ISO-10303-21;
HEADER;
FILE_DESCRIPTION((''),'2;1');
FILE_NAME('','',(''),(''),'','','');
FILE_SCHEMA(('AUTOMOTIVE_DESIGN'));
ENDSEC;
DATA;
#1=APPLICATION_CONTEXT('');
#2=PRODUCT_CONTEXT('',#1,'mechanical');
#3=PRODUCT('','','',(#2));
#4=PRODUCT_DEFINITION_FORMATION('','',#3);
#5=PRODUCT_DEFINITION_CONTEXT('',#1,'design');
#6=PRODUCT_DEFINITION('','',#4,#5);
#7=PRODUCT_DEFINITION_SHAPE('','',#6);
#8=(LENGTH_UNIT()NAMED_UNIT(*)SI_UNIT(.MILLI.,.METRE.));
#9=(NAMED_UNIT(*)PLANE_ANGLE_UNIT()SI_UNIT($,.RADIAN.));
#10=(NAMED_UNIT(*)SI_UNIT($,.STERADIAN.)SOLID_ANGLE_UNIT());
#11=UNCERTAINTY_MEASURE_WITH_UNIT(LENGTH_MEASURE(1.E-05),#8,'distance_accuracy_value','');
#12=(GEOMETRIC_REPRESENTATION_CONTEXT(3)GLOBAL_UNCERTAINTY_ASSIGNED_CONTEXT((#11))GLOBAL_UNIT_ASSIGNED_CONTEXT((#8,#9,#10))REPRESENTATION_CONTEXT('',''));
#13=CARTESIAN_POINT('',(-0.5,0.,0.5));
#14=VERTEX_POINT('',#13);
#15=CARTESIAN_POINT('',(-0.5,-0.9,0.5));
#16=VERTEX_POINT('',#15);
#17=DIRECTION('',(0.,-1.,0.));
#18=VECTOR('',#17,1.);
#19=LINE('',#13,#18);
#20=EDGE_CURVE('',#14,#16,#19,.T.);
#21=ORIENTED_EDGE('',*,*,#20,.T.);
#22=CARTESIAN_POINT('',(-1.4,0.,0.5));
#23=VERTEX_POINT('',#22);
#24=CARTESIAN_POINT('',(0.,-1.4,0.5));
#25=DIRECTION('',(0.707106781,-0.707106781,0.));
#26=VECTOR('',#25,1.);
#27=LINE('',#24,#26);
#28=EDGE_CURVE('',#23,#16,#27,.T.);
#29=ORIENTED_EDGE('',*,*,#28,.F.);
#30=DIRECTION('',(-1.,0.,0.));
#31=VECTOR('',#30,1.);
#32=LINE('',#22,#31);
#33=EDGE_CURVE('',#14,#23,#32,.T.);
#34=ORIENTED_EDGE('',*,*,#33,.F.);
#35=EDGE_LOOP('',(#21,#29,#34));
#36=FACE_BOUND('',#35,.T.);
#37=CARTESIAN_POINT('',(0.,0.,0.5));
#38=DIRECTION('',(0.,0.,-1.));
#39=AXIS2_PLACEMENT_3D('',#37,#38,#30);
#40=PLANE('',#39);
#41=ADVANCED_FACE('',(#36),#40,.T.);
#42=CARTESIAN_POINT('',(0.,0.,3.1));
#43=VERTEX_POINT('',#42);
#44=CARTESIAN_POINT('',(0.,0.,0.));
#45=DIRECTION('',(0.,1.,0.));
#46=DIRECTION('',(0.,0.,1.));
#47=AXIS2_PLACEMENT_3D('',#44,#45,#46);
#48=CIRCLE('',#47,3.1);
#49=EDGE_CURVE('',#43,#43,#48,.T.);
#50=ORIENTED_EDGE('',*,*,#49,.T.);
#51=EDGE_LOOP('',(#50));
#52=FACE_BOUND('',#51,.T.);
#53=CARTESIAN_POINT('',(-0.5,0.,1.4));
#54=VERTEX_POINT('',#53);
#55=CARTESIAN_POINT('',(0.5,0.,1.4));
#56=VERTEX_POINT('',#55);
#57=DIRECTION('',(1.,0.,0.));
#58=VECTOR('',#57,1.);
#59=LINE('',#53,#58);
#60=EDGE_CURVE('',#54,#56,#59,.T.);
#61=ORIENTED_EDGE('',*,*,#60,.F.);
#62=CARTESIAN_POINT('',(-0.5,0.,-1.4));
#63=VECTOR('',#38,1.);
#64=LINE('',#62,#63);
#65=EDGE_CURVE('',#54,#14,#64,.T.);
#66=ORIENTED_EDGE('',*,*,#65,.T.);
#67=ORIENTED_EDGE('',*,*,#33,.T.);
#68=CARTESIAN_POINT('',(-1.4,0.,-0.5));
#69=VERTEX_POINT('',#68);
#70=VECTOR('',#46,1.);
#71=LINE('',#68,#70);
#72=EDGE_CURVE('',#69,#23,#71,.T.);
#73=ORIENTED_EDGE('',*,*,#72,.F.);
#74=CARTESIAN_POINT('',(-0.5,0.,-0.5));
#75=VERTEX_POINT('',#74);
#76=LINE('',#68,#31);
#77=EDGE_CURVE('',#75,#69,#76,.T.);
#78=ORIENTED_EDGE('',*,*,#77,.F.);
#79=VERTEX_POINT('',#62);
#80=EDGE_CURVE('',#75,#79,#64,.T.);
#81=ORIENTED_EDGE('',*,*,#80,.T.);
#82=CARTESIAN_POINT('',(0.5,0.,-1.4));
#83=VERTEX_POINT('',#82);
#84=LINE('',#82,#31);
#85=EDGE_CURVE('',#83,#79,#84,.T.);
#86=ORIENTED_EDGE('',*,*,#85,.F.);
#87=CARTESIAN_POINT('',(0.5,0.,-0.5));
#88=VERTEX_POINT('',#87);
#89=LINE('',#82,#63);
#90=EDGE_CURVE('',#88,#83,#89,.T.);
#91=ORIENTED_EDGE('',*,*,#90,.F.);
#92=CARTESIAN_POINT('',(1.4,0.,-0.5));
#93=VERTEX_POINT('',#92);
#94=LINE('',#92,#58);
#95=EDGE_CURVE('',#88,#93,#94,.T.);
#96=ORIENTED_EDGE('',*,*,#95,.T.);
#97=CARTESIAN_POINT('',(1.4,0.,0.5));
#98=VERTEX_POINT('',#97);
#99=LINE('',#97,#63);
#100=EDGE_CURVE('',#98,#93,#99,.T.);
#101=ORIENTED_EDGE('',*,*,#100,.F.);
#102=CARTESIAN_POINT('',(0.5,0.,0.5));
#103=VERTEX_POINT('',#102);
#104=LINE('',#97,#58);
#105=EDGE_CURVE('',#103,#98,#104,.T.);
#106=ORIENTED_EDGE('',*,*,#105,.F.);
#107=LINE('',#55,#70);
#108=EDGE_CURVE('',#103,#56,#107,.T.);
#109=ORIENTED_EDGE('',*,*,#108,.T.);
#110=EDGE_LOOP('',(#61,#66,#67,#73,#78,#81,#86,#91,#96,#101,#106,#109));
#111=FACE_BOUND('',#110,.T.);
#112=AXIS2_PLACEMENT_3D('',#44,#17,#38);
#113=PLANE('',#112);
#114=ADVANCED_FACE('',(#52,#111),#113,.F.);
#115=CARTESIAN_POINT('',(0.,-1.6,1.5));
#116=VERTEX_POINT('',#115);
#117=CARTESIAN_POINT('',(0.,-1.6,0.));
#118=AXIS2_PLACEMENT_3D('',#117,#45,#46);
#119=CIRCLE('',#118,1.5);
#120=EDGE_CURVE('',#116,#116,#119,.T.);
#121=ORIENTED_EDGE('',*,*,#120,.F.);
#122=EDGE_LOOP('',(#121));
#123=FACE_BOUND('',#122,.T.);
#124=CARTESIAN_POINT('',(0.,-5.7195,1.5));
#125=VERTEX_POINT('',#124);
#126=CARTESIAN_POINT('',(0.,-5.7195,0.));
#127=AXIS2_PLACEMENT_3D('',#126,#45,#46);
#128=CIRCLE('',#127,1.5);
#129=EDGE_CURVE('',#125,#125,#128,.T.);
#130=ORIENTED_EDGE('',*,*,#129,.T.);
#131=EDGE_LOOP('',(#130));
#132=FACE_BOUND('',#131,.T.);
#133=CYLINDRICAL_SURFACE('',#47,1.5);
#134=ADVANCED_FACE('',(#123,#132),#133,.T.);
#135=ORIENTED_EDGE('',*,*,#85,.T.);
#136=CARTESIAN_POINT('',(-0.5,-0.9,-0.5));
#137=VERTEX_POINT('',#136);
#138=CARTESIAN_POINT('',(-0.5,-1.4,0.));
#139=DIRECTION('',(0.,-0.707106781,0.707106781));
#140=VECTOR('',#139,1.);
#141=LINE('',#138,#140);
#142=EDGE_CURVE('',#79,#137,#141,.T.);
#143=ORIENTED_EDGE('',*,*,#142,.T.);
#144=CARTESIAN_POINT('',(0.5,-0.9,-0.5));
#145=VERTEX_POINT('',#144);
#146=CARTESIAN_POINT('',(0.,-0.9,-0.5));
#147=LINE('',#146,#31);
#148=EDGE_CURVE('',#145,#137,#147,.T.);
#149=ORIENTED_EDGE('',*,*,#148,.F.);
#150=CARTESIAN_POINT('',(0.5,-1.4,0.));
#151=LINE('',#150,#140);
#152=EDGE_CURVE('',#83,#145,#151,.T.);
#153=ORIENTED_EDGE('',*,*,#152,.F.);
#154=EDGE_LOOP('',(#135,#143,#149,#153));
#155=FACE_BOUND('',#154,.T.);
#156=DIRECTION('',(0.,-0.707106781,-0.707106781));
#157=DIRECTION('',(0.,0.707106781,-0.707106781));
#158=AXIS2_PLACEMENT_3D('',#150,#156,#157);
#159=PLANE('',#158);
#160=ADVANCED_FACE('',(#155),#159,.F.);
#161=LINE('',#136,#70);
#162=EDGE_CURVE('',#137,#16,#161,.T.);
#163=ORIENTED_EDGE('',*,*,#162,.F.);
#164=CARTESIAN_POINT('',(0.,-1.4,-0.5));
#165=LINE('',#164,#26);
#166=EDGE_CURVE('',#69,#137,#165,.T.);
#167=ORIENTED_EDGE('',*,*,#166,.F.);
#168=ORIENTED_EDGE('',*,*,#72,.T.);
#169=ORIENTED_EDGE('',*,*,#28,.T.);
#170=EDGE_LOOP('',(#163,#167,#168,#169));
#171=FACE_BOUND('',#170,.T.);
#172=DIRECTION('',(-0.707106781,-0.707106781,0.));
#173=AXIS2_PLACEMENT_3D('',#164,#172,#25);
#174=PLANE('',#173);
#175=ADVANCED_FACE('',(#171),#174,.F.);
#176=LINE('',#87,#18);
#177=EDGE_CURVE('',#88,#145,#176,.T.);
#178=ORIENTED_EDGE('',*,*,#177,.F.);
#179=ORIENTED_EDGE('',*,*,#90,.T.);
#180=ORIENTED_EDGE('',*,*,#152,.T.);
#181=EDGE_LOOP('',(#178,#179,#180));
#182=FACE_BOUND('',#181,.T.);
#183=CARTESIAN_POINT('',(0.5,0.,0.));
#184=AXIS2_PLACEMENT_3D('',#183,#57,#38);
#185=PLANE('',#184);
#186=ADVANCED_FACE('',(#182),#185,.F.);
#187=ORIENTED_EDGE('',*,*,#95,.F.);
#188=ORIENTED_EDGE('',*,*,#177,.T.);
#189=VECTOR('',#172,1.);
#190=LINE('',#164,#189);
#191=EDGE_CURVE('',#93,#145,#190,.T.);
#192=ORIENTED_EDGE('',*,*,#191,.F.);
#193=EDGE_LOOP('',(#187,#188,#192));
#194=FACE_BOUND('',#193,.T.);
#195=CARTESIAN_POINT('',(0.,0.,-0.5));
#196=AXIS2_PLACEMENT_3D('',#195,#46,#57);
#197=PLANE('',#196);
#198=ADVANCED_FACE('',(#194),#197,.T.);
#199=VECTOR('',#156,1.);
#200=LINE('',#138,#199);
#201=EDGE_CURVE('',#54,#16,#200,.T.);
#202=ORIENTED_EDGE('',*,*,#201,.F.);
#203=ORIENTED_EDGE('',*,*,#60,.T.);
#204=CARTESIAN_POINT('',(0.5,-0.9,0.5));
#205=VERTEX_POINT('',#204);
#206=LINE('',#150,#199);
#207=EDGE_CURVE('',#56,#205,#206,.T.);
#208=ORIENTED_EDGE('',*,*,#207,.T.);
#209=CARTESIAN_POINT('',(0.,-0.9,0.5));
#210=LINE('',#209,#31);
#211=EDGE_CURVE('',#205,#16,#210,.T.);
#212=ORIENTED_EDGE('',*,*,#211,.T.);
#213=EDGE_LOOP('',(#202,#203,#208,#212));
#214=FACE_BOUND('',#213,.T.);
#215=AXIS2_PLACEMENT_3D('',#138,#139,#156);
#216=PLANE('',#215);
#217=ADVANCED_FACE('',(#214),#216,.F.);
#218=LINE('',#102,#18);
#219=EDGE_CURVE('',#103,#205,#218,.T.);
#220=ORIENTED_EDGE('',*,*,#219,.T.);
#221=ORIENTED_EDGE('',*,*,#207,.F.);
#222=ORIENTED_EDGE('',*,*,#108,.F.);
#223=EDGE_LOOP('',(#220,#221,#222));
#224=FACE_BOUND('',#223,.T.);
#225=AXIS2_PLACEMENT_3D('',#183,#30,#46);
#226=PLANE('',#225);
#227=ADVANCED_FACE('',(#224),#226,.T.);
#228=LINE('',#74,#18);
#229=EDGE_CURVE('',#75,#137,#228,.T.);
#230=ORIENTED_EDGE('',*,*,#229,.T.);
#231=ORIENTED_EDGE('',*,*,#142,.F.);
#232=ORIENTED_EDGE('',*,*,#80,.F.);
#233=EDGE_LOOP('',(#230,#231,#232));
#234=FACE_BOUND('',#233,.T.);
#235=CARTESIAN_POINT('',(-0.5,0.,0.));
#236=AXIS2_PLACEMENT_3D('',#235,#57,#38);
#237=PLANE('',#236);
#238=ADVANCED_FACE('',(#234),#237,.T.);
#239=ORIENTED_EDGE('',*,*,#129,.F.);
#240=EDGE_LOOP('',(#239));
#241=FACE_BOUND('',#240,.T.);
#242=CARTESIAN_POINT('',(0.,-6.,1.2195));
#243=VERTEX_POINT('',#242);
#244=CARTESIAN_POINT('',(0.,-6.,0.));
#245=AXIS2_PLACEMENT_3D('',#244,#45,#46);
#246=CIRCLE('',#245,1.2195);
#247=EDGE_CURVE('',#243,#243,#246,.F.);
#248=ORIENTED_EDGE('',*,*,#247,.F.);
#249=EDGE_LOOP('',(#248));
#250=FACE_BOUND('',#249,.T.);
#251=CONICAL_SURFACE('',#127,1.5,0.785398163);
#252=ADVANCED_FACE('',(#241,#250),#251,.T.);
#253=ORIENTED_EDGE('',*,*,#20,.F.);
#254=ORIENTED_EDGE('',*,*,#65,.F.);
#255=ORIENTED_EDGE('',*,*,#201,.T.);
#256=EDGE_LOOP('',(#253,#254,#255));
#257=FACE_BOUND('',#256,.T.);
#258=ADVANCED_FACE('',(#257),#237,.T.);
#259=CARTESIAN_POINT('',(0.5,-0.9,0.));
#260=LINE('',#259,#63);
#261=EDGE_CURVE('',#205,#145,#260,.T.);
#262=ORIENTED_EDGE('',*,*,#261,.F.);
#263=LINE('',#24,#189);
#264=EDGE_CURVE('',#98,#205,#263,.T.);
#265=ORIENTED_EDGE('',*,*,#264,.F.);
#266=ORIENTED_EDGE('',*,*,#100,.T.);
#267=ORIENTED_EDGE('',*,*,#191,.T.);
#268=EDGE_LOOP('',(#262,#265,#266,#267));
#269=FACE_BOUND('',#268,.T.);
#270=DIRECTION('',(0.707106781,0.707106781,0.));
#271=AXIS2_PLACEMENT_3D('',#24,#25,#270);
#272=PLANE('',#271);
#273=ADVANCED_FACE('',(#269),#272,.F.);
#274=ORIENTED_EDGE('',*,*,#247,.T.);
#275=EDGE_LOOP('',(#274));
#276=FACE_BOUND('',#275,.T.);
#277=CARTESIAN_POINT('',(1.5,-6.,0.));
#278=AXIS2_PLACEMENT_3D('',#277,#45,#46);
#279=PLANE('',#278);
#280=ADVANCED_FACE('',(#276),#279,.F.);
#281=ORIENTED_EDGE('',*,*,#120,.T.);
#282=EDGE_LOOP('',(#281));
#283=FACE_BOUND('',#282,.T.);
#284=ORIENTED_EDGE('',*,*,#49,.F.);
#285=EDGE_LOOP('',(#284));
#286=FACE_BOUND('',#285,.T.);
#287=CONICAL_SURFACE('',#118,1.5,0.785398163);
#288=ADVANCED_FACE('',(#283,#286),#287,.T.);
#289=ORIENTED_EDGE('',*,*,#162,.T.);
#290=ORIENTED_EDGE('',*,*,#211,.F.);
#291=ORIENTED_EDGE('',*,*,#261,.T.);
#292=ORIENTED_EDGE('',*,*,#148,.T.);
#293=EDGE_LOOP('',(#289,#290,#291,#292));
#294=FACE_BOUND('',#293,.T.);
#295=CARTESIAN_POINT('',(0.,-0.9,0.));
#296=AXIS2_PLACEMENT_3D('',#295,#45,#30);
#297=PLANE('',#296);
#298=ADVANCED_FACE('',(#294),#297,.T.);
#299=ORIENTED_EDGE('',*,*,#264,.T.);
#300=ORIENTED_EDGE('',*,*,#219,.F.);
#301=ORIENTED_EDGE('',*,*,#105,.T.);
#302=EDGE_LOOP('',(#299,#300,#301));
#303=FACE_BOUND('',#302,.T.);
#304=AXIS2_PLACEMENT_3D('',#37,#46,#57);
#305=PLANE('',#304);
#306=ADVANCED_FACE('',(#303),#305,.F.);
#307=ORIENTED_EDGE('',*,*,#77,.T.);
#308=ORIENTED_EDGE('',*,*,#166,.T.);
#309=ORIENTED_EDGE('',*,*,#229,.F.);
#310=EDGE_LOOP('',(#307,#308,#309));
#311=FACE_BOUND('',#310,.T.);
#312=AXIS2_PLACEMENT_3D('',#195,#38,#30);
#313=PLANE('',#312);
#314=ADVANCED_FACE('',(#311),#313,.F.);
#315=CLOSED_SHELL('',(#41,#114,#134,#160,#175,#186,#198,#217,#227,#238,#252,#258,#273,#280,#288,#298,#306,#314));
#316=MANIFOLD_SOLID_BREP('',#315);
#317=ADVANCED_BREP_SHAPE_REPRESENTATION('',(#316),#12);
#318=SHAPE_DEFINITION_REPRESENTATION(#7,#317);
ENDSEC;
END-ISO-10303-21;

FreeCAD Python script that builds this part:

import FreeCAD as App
import Part
import Sketcher
Q = App.Units.Quantity


def edges_at(feature, points):
    """Names of the edges that pass closest to the given points."""
    edges = feature.Shape.Edges
    near = lambda p: min(range(len(edges)), key=lambda i: edges[i].distToShape(Part.Vertex(*p))[0])
    return sorted({f"Edge{near(p) + 1}" for p in points})

doc = App.newDocument("Part")
body = doc.addObject("PartDesign::Body", "Body")

# Sketch on XY plane
sketch1 = body.newObject("Sketcher::SketchObject", "Sketch")
sketch1.AttachmentSupport = (doc.getObject("XY_Plane"), [""])
sketch1.MapMode = "FlatFace"
sketch1.addGeometry(Part.LineSegment(App.Vector(3.1, 0, 0), App.Vector(0, 0, 0)), False)
sketch1.addGeometry(Part.LineSegment(App.Vector(0, 0, 0), App.Vector(0, -6, 0)), False)
sketch1.addGeometry(Part.LineSegment(App.Vector(0, -6, 0), App.Vector(1.5, -6, 0)), False)
sketch1.addGeometry(Part.LineSegment(App.Vector(1.5, -6, 0), App.Vector(1.5, -1.6, 0)), False)
sketch1.addGeometry(Part.LineSegment(App.Vector(1.5, -1.6, 0), App.Vector(3.1, 0, 0)), False)
sketch1.addConstraint(Sketcher.Constraint("Coincident", 0, 2, 1, 1))
sketch1.addConstraint(Sketcher.Constraint("Coincident", 1, 2, 2, 1))
sketch1.addConstraint(Sketcher.Constraint("Coincident", 2, 2, 3, 1))
sketch1.addConstraint(Sketcher.Constraint("Coincident", 3, 2, 4, 1))
sketch1.addConstraint(Sketcher.Constraint("Coincident", 4, 2, 0, 1))
sketch1.addConstraint(Sketcher.Constraint("Horizontal", 0))
sketch1.addConstraint(Sketcher.Constraint("Vertical", 1))
sketch1.addConstraint(Sketcher.Constraint("Horizontal", 2))
sketch1.addConstraint(Sketcher.Constraint("Vertical", 3))
sketch1.addConstraint(Sketcher.Constraint("Coincident", 0, 2, -1, 1))
sketch1.addConstraint(Sketcher.Constraint("DistanceY", 1, 2, 1, 1, Q("6 mm")))
sketch1.addConstraint(Sketcher.Constraint("Angle", 4, Q("45 deg")))
sketch1.addConstraint(Sketcher.Constraint("DistanceX", 0, 2, 0, 1, Q("3.1 mm")))
sketch1.addConstraint(Sketcher.Constraint("DistanceX", 2, 1, 2, 2, Q("1.5 mm")))
revolution = body.newObject("PartDesign::Revolution", "Revolution")
revolution.Profile = sketch1
revolution.ReferenceAxis = (sketch1, ["V_Axis"])
revolution.Angle = 360
doc.recompute()

chamfer = body.newObject("PartDesign::Chamfer", "Chamfer")
chamfer.Base = (revolution, edges_at(revolution, [(-1.5, -6, 0)]))
chamfer.Size = 0.2805

# Sketch on XY plane
sketch2 = body.newObject("Sketcher::SketchObject", "Sketch001")
sketch2.AttachmentSupport = (doc.getObject("XY_Plane"), [""])
sketch2.MapMode = "FlatFace"
sketch2.addGeometry(Part.LineSegment(App.Vector(0, -1.4, 0), App.Vector(0, 0, 0)), False)
sketch2.addGeometry(Part.LineSegment(App.Vector(0, 0, 0), App.Vector(-1.4, 0, 0)), False)
sketch2.addGeometry(Part.LineSegment(App.Vector(-1.4, 0, 0), App.Vector(0, -1.4, 0)), False)
sketch2.addConstraint(Sketcher.Constraint("Coincident", 0, 2, 1, 1))
sketch2.addConstraint(Sketcher.Constraint("Coincident", 1, 2, 2, 1))
sketch2.addConstraint(Sketcher.Constraint("Coincident", 2, 2, 0, 1))
sketch2.addConstraint(Sketcher.Constraint("Vertical", 0))
sketch2.addConstraint(Sketcher.Constraint("Horizontal", 1))
sketch2.addConstraint(Sketcher.Constraint("Coincident", 0, 2, -1, 1))
sketch2.addConstraint(Sketcher.Constraint("Equal", 1, 0))
sketch2.addConstraint(Sketcher.Constraint("DistanceX", 1, 2, 1, 1, Q("1.4 mm")))
pocket1 = body.newObject("PartDesign::Pocket", "Pocket")
pocket1.Profile = sketch2
pocket1.Length = 1
pocket1.Midplane = True
doc.recompute()

polarpattern = body.newObject("PartDesign::PolarPattern", "PolarPattern")
polarpattern.Originals = [pocket1]
polarpattern.Axis = (doc.getObject("Y_Axis"), [""])
polarpattern.Angle = 360
polarpattern.Occurrences = 4
body.Tip = polarpattern

# Sketch on XZ plane
sketch3 = body.newObject("Sketcher::SketchObject", "Sketch002")
sketch3.AttachmentSupport = (doc.getObject("XZ_Plane"), [""])
sketch3.MapMode = "FlatFace"
sketch3.AttachmentOffset = App.Placement(App.Vector(0, 0, 0.9), App.Rotation())
sketch3.addGeometry(Part.LineSegment(App.Vector(-0.5, -0.5, 0), App.Vector(-0.5, 0.5, 0)), False)
sketch3.addGeometry(Part.LineSegment(App.Vector(-0.5, 0.5, 0), App.Vector(0.5, 0.5, 0)), False)
sketch3.addGeometry(Part.LineSegment(App.Vector(0.5, 0.5, 0), App.Vector(0.5, -0.5, 0)), False)
sketch3.addGeometry(Part.LineSegment(App.Vector(0.5, -0.5, 0), App.Vector(-0.5, -0.5, 0)), False)
sketch3.addConstraint(Sketcher.Constraint("Coincident", 0, 2, 1, 1))
sketch3.addConstraint(Sketcher.Constraint("Coincident", 1, 2, 2, 1))
sketch3.addConstraint(Sketcher.Constraint("Coincident", 2, 2, 3, 1))
sketch3.addConstraint(Sketcher.Constraint("Coincident", 3, 2, 0, 1))
sketch3.addConstraint(Sketcher.Constraint("Vertical", 0))
sketch3.addConstraint(Sketcher.Constraint("Horizontal", 1))
sketch3.addConstraint(Sketcher.Constraint("Vertical", 2))
sketch3.addConstraint(Sketcher.Constraint("Horizontal", 3))
sketch3.addConstraint(Sketcher.Constraint("Symmetric", 0, 2, 2, 2, -1, 1))
sketch3.addConstraint(Sketcher.Constraint("Equal", 3, 0))
sketch3.addConstraint(Sketcher.Constraint("DistanceX", 1, 1, 1, 2, Q("1 mm")))
pad1 = body.newObject("PartDesign::Pad", "Pad")
pad1.Profile = sketch3
pad1.Length = 2

doc.recompute()
